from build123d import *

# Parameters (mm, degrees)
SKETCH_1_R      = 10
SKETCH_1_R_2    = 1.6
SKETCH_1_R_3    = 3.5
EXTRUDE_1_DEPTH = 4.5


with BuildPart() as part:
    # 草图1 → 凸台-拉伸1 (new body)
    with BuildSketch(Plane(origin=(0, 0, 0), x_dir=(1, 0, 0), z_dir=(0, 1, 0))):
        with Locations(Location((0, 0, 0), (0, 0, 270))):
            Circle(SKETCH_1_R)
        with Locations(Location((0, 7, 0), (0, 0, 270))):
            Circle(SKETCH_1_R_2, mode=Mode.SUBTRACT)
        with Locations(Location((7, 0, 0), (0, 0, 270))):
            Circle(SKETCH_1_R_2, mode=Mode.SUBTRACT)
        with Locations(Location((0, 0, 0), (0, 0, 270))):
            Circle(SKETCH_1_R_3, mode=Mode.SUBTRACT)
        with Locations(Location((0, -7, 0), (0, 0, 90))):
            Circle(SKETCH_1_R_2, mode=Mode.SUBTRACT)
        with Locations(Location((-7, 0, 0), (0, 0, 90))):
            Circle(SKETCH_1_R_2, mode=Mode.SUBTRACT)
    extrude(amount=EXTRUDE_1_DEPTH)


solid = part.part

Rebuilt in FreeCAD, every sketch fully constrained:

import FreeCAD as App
import Part
import Sketcher

doc = App.newDocument("Part")
body = doc.addObject("PartDesign::Body", "Body")

# Sketch on XZ plane
sketch1 = doc.addObject("Sketcher::SketchObject", "Sketch")
body.addObject(sketch1)
sketch1.AttachmentSupport = (doc.XZ_Plane, [""])
sketch1.MapMode = "FlatFace"
sketch1.addGeometry(Part.Circle(App.Vector(0, 0, 0), App.Vector(0, 0, 1), 10), False)
sketch1.addGeometry(Part.Circle(App.Vector(0, -7, 0), App.Vector(0, 0, 1), 1.6), False)
sketch1.addGeometry(Part.Circle(App.Vector(-7, 0, 0), App.Vector(0, 0, 1), 1.6), False)
sketch1.addGeometry(Part.Circle(App.Vector(0, 0, 0), App.Vector(0, 0, 1), 3.5), False)
sketch1.addGeometry(Part.Circle(App.Vector(7, 0, 0), App.Vector(0, 0, 1), 1.6), False)
sketch1.addGeometry(Part.Circle(App.Vector(0, 7, 0), App.Vector(0, 0, 1), 1.6), False)
sketch1.addConstraint(Sketcher.Constraint("Coincident", 0, 3, -1, 1))
sketch1.addConstraint(Sketcher.Constraint("Coincident", 3, 3, -1, 1))
sketch1.addConstraint(Sketcher.Constraint("Equal", 1, 2))
sketch1.addConstraint(Sketcher.Constraint("Equal", 2, 4))
sketch1.addConstraint(Sketcher.Constraint("Equal", 4, 5))
sketch1.addConstraint(Sketcher.Constraint("Symmetric", 2, 3, 4, 3, -1, 1))
sketch1.addConstraint(Sketcher.Constraint("Symmetric", 1, 3, 5, 3, -1, 1))
sketch1.addConstraint(Sketcher.Constraint("PointOnObject", 1, 3, -2))
sketch1.addConstraint(Sketcher.Constraint("PointOnObject", 2, 3, -1))
sketch1.addConstraint(Sketcher.Constraint("Diameter", 0, 20.0))
sketch1.addConstraint(Sketcher.Constraint("Diameter", 3, 7.0))
sketch1.addConstraint(Sketcher.Constraint("Diameter", 1, 3.2))
sketch1.addConstraint(Sketcher.Constraint("DistanceY", 1, 3, -1, 1, 7.0))
sketch1.addConstraint(Sketcher.Constraint("DistanceX", 2, 3, -1, 1, 7.0))
pad1 = doc.addObject("PartDesign::Pad", "Pad")
body.addObject(pad1)
pad1.Profile = sketch1
pad1.Length = 4.5
pad1.Reversed = True

doc.recompute()
